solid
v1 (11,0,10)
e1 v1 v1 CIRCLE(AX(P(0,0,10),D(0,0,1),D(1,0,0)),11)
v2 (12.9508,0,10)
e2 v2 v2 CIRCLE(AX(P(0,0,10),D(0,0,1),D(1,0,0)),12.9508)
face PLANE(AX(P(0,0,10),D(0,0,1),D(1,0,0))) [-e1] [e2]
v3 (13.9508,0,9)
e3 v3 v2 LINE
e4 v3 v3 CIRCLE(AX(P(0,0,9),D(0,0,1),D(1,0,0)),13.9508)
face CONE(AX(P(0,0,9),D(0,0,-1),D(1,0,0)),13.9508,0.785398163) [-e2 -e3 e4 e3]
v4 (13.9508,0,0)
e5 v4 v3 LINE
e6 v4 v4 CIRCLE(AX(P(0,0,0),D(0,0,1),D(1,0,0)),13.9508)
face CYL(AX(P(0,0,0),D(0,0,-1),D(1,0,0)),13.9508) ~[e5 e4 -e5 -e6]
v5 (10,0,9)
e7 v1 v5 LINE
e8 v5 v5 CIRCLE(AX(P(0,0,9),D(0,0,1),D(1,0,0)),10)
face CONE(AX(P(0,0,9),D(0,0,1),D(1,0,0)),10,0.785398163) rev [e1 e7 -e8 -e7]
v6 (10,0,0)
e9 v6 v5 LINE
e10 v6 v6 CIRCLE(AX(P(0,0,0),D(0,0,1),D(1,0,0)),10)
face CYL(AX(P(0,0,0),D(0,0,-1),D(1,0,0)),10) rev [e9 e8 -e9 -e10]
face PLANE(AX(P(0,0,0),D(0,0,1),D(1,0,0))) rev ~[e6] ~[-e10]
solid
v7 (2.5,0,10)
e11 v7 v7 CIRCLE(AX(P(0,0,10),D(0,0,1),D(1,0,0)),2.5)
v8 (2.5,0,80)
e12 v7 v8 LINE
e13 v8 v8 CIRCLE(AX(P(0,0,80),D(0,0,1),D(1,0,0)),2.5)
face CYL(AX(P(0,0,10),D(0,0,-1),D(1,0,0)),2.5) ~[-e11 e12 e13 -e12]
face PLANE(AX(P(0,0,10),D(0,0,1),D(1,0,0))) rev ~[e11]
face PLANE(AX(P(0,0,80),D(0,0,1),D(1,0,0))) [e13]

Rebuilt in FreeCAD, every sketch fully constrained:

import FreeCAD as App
import Part
import Sketcher


def edges_at(feature, points):
    """Names of the edges that pass closest to the given points."""
    edges = feature.Shape.Edges
    near = lambda p: min(range(len(edges)), key=lambda i: edges[i].distToShape(Part.Vertex(*p))[0])
    return sorted({f"Edge{near(p) + 1}" for p in points})

doc = App.newDocument("Part")
body = doc.addObject("PartDesign::Body", "Body")
body.AllowCompound = True

sketch1 = body.newObject("Sketcher::SketchObject", "Sketch")
sketch1.AttachmentSupport = (doc.getObject("XY_Plane"), [""])
sketch1.MapMode = "FlatFace"
sketch1.addGeometry([
    Part.Circle(App.Vector(0, 0, 0), App.Vector(0, 0, 1), 14),
    Part.Circle(App.Vector(0, 0, 0), App.Vector(0, 0, 1), 10),
], False)
sketch1.addConstraint([
    Sketcher.Constraint("Coincident", 0, 3, -1, 1),
    Sketcher.Constraint("Coincident", 1, 3, -1, 1),
    Sketcher.Constraint("Diameter", 1, 20.0),
    Sketcher.Constraint("Diameter", 0, 27.9016),
])
pad1 = body.newObject("PartDesign::Pad", "Pad")
pad1.Profile = sketch1
pad1.Length = 10
doc.recompute()

chamfer = body.newObject("PartDesign::Chamfer", "Chamfer")
chamfer.Base = (pad1, edges_at(pad1, [(-13.951, 0, 10)]))
chamfer.Size = 1
doc.recompute()

chamfer2 = body.newObject("PartDesign::Chamfer", "Chamfer001")
chamfer2.Base = (chamfer, edges_at(chamfer, [(-10, 0, 10)]))
chamfer2.Size = 1

sketch2 = body.newObject("Sketcher::SketchObject", "Sketch001")
sketch2.AttachmentSupport = (doc.getObject("XY_Plane"), [""])
sketch2.MapMode = "FlatFace"
sketch2.AttachmentOffset = App.Placement(App.Vector(0, 0, 10), App.Rotation())
sketch2.addGeometry(Part.Circle(App.Vector(0, 0, 0), App.Vector(0, 0, 1), 2.5), False)
sketch2.addConstraint([
    Sketcher.Constraint("Coincident", 0, 3, -1, 1),
    Sketcher.Constraint("Diameter", 0, 5.0),
])
pad2 = body.newObject("PartDesign::Pad", "Pad001")
pad2.Profile = sketch2
pad2.Length = 70

doc.recompute()
